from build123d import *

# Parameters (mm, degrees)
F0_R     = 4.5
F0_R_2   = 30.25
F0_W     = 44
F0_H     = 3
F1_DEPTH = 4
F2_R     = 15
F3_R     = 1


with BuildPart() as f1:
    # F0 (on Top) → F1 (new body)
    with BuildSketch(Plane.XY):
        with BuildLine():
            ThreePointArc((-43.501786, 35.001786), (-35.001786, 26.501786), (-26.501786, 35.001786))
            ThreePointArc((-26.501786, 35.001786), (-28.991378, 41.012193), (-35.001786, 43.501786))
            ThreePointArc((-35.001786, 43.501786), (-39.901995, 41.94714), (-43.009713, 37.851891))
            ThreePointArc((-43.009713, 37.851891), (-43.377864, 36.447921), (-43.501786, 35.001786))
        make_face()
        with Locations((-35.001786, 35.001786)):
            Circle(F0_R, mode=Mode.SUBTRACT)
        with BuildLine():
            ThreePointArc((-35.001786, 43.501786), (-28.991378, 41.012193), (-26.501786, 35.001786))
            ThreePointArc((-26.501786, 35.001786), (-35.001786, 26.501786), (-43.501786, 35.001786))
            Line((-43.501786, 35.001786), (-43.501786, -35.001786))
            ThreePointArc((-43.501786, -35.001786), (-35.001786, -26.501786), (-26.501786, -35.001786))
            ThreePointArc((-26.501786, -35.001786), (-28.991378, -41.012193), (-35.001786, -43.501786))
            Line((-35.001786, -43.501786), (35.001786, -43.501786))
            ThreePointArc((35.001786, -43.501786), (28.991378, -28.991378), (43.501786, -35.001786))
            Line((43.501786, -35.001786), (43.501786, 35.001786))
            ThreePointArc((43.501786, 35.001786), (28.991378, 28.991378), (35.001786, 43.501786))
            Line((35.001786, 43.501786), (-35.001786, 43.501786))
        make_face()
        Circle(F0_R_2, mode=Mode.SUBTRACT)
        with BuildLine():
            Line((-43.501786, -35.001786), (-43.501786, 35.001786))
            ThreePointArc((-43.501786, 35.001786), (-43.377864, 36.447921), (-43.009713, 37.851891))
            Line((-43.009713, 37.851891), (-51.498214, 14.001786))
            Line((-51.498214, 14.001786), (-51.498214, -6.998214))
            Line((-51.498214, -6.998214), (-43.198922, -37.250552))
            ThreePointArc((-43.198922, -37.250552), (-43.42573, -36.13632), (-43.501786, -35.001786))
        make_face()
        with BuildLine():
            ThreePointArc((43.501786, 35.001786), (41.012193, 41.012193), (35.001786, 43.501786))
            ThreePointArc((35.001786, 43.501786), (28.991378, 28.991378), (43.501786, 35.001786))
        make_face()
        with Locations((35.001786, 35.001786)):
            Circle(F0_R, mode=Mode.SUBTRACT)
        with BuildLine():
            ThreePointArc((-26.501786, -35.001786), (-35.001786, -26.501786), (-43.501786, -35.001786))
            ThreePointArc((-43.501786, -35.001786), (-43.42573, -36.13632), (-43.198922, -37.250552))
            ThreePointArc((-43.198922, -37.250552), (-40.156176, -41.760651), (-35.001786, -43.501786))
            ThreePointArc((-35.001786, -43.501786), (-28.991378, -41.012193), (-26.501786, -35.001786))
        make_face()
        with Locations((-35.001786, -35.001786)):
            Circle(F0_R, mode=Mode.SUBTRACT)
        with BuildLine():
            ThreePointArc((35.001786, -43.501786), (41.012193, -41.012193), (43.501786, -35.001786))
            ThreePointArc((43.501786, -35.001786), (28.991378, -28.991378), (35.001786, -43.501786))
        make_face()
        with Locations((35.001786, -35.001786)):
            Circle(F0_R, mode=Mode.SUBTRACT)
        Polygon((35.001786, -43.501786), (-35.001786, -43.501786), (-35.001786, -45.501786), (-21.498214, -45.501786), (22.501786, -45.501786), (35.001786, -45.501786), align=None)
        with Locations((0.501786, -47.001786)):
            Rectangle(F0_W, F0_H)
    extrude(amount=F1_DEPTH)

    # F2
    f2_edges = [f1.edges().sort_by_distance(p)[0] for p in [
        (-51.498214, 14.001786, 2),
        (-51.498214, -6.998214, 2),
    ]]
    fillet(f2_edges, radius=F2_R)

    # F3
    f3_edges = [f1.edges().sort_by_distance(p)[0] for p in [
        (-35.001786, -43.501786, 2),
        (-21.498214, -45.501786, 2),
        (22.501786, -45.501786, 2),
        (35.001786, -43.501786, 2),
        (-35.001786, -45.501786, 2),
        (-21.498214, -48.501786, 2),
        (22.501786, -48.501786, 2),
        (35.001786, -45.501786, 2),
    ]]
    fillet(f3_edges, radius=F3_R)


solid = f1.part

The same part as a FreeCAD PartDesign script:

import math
import FreeCAD as App
import Part
import Sketcher
from FreeCAD import Vector
Q = App.Units.Quantity


def edges_at(feature, points):
    """Names of the edges that pass closest to the given points."""
    edges = feature.Shape.Edges
    near = lambda p: min(range(len(edges)), key=lambda i: edges[i].distToShape(Part.Vertex(*p))[0])
    return sorted({f"Edge{near(p) + 1}" for p in points})

doc = App.newDocument("Part")
body = doc.addObject("PartDesign::Body", "Body")

# Sketch on XY plane
sketch1 = body.newObject("Sketcher::SketchObject", "Sketch")
sketch1.AttachmentSupport = (doc.getObject("XY_Plane"), [""])
sketch1.MapMode = "FlatFace"
sketch1.addGeometry([
    Part.ArcOfCircle(Part.Circle(Vector(-35.001785, 35.001785, 0), Vector(0, 0, 1), 8.500001), math.radians(90.00001), math.radians(160.408818)),  # 0
    Part.LineSegment(Vector(-43.009713, 37.851891, 0), Vector(-51.498214, 14.001786, 0)),  # 1
    Part.LineSegment(Vector(-51.498214, 14.001786, 0), Vector(-51.498214, -6.998214, 0)),  # 2
    Part.LineSegment(Vector(-51.498214, -6.998214, 0), Vector(-43.198922, -37.250552, 0)),  # 3
    Part.ArcOfCircle(Part.Circle(Vector(-35.001785, -35.001786, 0), Vector(0, 0, 1), 8.5), math.radians(-164.659149), math.radians(-90.000005)),  # 4
    Part.LineSegment(Vector(-35.001786, -43.501786, 0), Vector(-35.001786, -45.501786, 0)),  # 5
    Part.LineSegment(Vector(-35.001786, -45.501786, 0), Vector(-21.498214, -45.501786, 0)),  # 6
    Part.LineSegment(Vector(-21.498214, -45.501786, 0), Vector(-21.498214, -48.501786, 0)),  # 7
    Part.LineSegment(Vector(-21.498214, -48.501786, 0), Vector(22.501786, -48.501786, 0)),  # 8
    Part.LineSegment(Vector(22.501786, -48.501786, 0), Vector(22.501786, -45.501786, 0)),  # 9
    Part.LineSegment(Vector(22.501786, -45.501786, 0), Vector(35.001786, -45.501786, 0)),  # 10
    Part.LineSegment(Vector(35.001786, -45.501786, 0), Vector(35.001786, -43.501786, 0)),  # 11
    Part.ArcOfCircle(Part.Circle(Vector(35.001784, -35.001784, 0), Vector(0, 0, 1), 8.500002), math.radians(-89.999985), math.radians(-0.000015)),  # 12
    Part.LineSegment(Vector(43.501786, -35.001786, 0), Vector(43.501786, 35.001786, 0)),  # 13
    Part.ArcOfCircle(Part.Circle(Vector(35.001784, 35.001784, 0), Vector(0, 0, 1), 8.500002), math.radians(0.000015), math.radians(89.999985)),  # 14
    Part.LineSegment(Vector(35.001786, 43.501786, 0), Vector(-35.001786, 43.501786, 0)),  # 15
    Part.Circle(Vector(-35.001786, -35.001786, 0), Vector(0, 0, 1), 4.5),  # 16
    Part.Circle(Vector(35.001786, -35.001786, 0), Vector(0, 0, 1), 4.5),  # 17
    Part.Circle(Vector(-35.001786, 35.001786, 0), Vector(0, 0, 1), 4.5),  # 18
    Part.Circle(Vector(0, 0, 0), Vector(0, 0, 1), 30.25),  # 19
    Part.Circle(Vector(35.001786, 35.001786, 0), Vector(0, 0, 1), 4.5),  # 20
], False)
sketch1.addConstraint([
    Sketcher.Constraint("Tangent", 0, 2, 1, 1),
    Sketcher.Constraint("Coincident", 1, 2, 2, 1),
    Sketcher.Constraint("Coincident", 2, 2, 3, 1),
    Sketcher.Constraint("Tangent", 3, 2, 4, 1),
    Sketcher.Constraint("Coincident", 4, 2, 5, 1),
    Sketcher.Constraint("Coincident", 5, 2, 6, 1),
    Sketcher.Constraint("Coincident", 6, 2, 7, 1),
    Sketcher.Constraint("Coincident", 7, 2, 8, 1),
    Sketcher.Constraint("Coincident", 8, 2, 9, 1),
    Sketcher.Constraint("Coincident", 9, 2, 10, 1),
    Sketcher.Constraint("Coincident", 10, 2, 11, 1),
    Sketcher.Constraint("Coincident", 11, 2, 12, 1),
    Sketcher.Constraint("Tangent", 12, 2, 13, 1),
    Sketcher.Constraint("Tangent", 13, 2, 14, 1),
    Sketcher.Constraint("Tangent", 14, 2, 15, 1),
    Sketcher.Constraint("Tangent", 15, 2, 0, 1),
    Sketcher.Constraint("Vertical", 2),
    Sketcher.Constraint("Vertical", 5),
    Sketcher.Constraint("Horizontal", 6),
    Sketcher.Constraint("Vertical", 7),
    Sketcher.Constraint("Horizontal", 8),
    Sketcher.Constraint("Vertical", 9),
    Sketcher.Constraint("Horizontal", 10),
    Sketcher.Constraint("Vertical", 11),
    Sketcher.Constraint("Vertical", 13),
    Sketcher.Constraint("Horizontal", 15),
    Sketcher.Constraint("Coincident", 19, 3, -1, 1),
    Sketcher.Constraint("Coincident", 16, 3, 4, 3),
    Sketcher.Constraint("Coincident", 17, 3, 12, 3),
    Sketcher.Constraint("Coincident", 18, 3, 0, 3),
    Sketcher.Constraint("Coincident", 20, 3, 14, 3),
    Sketcher.Constraint("Equal", 0, 4),
    Sketcher.Constraint("Equal", 0, 12),
    Sketcher.Constraint("Equal", 12, 14),
    Sketcher.Constraint("Equal", 16, 17),
    Sketcher.Constraint("Equal", 17, 18),
    Sketcher.Constraint("Equal", 18, 20),
    Sketcher.Constraint("Symmetric", 0, 3, 12, 3, -1, 1),
    Sketcher.Constraint("Symmetric", 4, 3, 14, 3, -1, 1),
    Sketcher.Constraint("Symmetric", 5, 2, 10, 2, -2),
    Sketcher.Constraint("Vertical", 18, 3, 4, 2),
    Sketcher.Constraint("Equal", 15, 13),
    Sketcher.Constraint("Diameter", 16, Q("9 mm")),
    Sketcher.Constraint("Diameter", 19, Q("60.5 mm")),
    Sketcher.Constraint("Radius", 0, Q("8.500001 mm")),
    Sketcher.Constraint("DistanceX", 8, 1, 8, 2, Q("44 mm")),
    Sketcher.Constraint("DistanceY", 2, 2, 2, 1, Q("21 mm")),
    Sketcher.Constraint("DistanceY", 5, 2, 5, 1, Q("2 mm")),
    Sketcher.Constraint("DistanceY", 7, 2, 7, 1, Q("3 mm")),
    Sketcher.Constraint("DistanceX", 10, 1, 10, 2, Q("12.5 mm")),
    Sketcher.Constraint("DistanceY", 1, 2, 0, 3, Q("20.999999 mm")),
    Sketcher.Constraint("DistanceX", 1, 2, 0, 2, Q("8.488501 mm")),
    Sketcher.Constraint("DistanceX", 6, 1, 6, 2, Q("13.503572 mm")),
])
pad1 = body.newObject("PartDesign::Pad", "Pad")
pad1.Profile = sketch1
pad1.Length = 4
doc.recompute()

fillet = body.newObject("PartDesign::Fillet", "Fillet")
fillet.Base = (pad1, edges_at(pad1, [(-51.498, 14.002, 2), (-51.498, -6.998, 2)]))
fillet.Radius = 15
doc.recompute()

fillet2 = body.newObject("PartDesign::Fillet", "Fillet001")
fillet2.Base = (fillet, edges_at(fillet, [
    (-35.002, -43.502, 2),
    (-21.498, -45.502, 2),
    (22.502, -45.502, 2),
    (35.002, -43.502, 2),
    (-35.002, -45.502, 2),
    (-21.498, -48.502, 2),
    (22.502, -48.502, 2),
    (35.002, -45.502, 2),
]))
fillet2.Radius = 1

doc.recompute()
